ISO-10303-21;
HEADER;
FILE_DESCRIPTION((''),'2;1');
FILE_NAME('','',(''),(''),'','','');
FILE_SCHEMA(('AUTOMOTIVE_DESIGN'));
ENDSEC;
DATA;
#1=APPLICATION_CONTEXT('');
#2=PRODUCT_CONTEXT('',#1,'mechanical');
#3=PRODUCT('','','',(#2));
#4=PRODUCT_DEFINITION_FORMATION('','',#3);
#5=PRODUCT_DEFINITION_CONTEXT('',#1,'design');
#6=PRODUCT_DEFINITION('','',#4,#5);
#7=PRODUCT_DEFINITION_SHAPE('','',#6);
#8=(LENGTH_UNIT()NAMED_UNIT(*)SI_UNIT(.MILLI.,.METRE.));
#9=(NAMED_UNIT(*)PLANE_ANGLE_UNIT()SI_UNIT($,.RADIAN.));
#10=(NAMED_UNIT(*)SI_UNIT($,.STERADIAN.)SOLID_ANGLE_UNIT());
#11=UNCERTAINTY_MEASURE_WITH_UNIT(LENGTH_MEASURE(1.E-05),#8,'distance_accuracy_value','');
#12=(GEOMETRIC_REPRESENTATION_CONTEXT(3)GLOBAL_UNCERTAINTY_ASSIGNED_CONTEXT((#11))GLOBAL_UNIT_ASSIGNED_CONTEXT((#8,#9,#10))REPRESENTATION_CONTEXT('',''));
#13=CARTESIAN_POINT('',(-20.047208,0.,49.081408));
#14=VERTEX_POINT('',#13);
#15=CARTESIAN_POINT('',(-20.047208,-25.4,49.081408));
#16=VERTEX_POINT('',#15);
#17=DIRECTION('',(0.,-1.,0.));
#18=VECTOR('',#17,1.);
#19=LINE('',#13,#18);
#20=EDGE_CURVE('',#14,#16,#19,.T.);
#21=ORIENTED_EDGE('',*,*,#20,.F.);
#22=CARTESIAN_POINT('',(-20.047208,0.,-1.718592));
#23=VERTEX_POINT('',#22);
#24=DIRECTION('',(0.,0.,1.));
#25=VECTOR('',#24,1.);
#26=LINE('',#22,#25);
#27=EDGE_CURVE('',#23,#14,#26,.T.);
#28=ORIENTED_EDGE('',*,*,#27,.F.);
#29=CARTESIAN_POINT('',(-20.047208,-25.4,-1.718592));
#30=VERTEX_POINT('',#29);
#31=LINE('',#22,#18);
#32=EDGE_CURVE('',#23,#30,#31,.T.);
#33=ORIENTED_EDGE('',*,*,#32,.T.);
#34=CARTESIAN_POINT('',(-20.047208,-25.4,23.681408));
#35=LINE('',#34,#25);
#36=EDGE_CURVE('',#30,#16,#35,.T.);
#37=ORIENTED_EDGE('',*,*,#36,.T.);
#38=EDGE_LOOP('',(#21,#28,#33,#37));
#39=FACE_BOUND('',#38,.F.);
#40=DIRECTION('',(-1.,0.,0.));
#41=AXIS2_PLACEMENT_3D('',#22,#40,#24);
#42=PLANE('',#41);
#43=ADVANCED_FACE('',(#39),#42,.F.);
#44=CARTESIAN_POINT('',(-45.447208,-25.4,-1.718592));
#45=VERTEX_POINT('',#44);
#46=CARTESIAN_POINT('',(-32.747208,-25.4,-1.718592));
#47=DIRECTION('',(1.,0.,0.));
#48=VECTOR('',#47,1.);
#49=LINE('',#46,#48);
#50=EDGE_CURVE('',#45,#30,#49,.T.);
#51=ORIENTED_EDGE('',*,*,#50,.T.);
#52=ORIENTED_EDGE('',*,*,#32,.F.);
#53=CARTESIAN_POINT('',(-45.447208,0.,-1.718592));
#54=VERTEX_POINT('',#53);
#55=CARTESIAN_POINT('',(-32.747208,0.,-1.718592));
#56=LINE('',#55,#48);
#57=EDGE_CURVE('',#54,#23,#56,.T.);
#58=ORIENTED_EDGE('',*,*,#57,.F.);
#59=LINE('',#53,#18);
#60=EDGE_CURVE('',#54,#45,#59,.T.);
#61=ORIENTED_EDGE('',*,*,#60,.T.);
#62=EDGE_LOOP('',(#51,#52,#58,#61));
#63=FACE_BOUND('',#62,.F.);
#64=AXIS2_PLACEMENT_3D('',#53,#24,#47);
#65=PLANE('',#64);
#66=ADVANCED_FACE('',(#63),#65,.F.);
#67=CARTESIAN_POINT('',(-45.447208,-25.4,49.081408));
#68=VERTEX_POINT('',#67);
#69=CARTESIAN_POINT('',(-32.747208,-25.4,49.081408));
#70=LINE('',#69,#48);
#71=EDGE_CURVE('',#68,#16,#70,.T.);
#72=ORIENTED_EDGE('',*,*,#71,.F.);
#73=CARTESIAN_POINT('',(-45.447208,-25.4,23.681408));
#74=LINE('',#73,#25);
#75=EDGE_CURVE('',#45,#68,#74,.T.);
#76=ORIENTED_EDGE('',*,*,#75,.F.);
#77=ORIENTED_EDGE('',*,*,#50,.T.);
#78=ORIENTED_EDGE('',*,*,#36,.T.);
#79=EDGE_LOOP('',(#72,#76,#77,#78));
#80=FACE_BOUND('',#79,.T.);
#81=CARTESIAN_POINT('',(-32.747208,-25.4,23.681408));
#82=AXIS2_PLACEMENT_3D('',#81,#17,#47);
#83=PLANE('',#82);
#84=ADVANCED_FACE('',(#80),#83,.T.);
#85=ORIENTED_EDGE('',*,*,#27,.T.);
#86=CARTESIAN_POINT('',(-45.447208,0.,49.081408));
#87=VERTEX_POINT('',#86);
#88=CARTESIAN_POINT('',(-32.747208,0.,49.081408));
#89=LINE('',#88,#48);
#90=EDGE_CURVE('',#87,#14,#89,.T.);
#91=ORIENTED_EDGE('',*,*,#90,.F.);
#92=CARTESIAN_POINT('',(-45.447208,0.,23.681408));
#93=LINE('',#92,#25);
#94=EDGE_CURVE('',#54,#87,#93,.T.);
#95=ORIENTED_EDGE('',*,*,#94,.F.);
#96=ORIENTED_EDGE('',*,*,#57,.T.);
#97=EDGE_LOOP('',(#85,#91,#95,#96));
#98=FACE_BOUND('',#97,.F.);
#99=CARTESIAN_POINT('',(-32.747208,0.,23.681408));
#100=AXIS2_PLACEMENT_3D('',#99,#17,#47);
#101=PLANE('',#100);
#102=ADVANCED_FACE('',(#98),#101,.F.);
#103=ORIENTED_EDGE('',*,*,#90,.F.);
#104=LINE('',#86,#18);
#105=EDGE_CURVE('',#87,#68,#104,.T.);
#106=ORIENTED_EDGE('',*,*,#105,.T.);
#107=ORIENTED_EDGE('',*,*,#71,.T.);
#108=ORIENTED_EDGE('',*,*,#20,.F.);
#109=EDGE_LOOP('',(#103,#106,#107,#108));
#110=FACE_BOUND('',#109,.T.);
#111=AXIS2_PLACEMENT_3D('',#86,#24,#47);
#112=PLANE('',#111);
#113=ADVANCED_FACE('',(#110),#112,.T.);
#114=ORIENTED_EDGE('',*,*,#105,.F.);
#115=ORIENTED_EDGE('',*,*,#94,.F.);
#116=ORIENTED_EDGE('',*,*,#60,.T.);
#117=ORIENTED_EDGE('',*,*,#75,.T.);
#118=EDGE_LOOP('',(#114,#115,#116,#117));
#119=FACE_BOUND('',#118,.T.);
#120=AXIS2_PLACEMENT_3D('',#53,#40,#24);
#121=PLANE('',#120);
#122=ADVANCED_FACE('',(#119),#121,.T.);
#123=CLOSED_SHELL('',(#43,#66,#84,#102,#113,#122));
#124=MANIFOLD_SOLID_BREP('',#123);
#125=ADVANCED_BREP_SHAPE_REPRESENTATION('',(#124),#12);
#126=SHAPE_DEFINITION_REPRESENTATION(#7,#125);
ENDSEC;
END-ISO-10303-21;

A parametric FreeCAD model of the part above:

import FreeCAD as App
import Part
import Sketcher
from FreeCAD import Vector
Q = App.Units.Quantity


def add_polygon(sketch, points):
    """Adds a closed chain of lines whose ends are joined by coincident constraints."""
    first, n = sketch.GeometryCount, len(points)
    for a, b in zip(points, points[1:] + points[:1]):
        sketch.addGeometry(Part.LineSegment(App.Vector(*a, 0), App.Vector(*b, 0)), False)
    for i in range(n):
        sketch.addConstraint(Sketcher.Constraint("Coincident", first + i, 2, first + (i + 1) % n, 1))

doc = App.newDocument("Part")
body = doc.addObject("PartDesign::Body", "Body")

sketch1 = body.newObject("Sketcher::SketchObject", "Sketch")
sketch1.AttachmentSupport = (doc.getObject("XZ_Plane"), [""])
sketch1.MapMode = "FlatFace"
add_polygon(sketch1, [(-45, 49), (-45, -2), (-20, -2), (-20, 49)])
sketch1.addConstraint([
    Sketcher.Constraint("Vertical", 0),
    Sketcher.Constraint("Horizontal", 1),
    Sketcher.Constraint("Vertical", 2),
    Sketcher.Constraint("Horizontal", 3),
    Sketcher.Constraint("DistanceX", 1, 1, 1, 2, Q("1 in")),
    Sketcher.Constraint("DistanceY", 0, 2, 0, 1, Q("2 in")),
    Sketcher.Constraint("DistanceX", 0, 2, -1, 1, Q("45.447208 mm")),
    Sketcher.Constraint("DistanceY", 0, 2, -1, 1, Q("1.718592 mm")),
])
pad1 = body.newObject("PartDesign::Pad", "Pad")
pad1.Profile = sketch1
pad1.Length = Q("1 in")

sketch2 = body.newObject("Sketcher::SketchObject", "Sketch001")
sketch2.AttachmentSupport = (doc.getObject("XZ_Plane"), [""])
sketch2.MapMode = "FlatFace"
add_polygon(sketch2, [(-45, 25), (-45, 0), (-20, 0), (-20, 25)])
sketch2.addConstraint([
    Sketcher.Constraint("Vertical", 0),
    Sketcher.Constraint("Horizontal", 1),
    Sketcher.Constraint("Vertical", 2),
    Sketcher.Constraint("Horizontal", 3),
    Sketcher.Constraint("PointOnObject", 0, 2, -1),
    Sketcher.Constraint("Equal", 3, 0),
    Sketcher.Constraint("DistanceX", 1, 1, 1, 2, Q("1 in")),
    Sketcher.Constraint("DistanceX", 0, 2, -1, 1, Q("45.065299 mm")),
])
pocket1 = body.newObject("PartDesign::Pocket", "Pocket")
pocket1.Profile = sketch2
pocket1.Length = Q("1 in")

doc.recompute()
